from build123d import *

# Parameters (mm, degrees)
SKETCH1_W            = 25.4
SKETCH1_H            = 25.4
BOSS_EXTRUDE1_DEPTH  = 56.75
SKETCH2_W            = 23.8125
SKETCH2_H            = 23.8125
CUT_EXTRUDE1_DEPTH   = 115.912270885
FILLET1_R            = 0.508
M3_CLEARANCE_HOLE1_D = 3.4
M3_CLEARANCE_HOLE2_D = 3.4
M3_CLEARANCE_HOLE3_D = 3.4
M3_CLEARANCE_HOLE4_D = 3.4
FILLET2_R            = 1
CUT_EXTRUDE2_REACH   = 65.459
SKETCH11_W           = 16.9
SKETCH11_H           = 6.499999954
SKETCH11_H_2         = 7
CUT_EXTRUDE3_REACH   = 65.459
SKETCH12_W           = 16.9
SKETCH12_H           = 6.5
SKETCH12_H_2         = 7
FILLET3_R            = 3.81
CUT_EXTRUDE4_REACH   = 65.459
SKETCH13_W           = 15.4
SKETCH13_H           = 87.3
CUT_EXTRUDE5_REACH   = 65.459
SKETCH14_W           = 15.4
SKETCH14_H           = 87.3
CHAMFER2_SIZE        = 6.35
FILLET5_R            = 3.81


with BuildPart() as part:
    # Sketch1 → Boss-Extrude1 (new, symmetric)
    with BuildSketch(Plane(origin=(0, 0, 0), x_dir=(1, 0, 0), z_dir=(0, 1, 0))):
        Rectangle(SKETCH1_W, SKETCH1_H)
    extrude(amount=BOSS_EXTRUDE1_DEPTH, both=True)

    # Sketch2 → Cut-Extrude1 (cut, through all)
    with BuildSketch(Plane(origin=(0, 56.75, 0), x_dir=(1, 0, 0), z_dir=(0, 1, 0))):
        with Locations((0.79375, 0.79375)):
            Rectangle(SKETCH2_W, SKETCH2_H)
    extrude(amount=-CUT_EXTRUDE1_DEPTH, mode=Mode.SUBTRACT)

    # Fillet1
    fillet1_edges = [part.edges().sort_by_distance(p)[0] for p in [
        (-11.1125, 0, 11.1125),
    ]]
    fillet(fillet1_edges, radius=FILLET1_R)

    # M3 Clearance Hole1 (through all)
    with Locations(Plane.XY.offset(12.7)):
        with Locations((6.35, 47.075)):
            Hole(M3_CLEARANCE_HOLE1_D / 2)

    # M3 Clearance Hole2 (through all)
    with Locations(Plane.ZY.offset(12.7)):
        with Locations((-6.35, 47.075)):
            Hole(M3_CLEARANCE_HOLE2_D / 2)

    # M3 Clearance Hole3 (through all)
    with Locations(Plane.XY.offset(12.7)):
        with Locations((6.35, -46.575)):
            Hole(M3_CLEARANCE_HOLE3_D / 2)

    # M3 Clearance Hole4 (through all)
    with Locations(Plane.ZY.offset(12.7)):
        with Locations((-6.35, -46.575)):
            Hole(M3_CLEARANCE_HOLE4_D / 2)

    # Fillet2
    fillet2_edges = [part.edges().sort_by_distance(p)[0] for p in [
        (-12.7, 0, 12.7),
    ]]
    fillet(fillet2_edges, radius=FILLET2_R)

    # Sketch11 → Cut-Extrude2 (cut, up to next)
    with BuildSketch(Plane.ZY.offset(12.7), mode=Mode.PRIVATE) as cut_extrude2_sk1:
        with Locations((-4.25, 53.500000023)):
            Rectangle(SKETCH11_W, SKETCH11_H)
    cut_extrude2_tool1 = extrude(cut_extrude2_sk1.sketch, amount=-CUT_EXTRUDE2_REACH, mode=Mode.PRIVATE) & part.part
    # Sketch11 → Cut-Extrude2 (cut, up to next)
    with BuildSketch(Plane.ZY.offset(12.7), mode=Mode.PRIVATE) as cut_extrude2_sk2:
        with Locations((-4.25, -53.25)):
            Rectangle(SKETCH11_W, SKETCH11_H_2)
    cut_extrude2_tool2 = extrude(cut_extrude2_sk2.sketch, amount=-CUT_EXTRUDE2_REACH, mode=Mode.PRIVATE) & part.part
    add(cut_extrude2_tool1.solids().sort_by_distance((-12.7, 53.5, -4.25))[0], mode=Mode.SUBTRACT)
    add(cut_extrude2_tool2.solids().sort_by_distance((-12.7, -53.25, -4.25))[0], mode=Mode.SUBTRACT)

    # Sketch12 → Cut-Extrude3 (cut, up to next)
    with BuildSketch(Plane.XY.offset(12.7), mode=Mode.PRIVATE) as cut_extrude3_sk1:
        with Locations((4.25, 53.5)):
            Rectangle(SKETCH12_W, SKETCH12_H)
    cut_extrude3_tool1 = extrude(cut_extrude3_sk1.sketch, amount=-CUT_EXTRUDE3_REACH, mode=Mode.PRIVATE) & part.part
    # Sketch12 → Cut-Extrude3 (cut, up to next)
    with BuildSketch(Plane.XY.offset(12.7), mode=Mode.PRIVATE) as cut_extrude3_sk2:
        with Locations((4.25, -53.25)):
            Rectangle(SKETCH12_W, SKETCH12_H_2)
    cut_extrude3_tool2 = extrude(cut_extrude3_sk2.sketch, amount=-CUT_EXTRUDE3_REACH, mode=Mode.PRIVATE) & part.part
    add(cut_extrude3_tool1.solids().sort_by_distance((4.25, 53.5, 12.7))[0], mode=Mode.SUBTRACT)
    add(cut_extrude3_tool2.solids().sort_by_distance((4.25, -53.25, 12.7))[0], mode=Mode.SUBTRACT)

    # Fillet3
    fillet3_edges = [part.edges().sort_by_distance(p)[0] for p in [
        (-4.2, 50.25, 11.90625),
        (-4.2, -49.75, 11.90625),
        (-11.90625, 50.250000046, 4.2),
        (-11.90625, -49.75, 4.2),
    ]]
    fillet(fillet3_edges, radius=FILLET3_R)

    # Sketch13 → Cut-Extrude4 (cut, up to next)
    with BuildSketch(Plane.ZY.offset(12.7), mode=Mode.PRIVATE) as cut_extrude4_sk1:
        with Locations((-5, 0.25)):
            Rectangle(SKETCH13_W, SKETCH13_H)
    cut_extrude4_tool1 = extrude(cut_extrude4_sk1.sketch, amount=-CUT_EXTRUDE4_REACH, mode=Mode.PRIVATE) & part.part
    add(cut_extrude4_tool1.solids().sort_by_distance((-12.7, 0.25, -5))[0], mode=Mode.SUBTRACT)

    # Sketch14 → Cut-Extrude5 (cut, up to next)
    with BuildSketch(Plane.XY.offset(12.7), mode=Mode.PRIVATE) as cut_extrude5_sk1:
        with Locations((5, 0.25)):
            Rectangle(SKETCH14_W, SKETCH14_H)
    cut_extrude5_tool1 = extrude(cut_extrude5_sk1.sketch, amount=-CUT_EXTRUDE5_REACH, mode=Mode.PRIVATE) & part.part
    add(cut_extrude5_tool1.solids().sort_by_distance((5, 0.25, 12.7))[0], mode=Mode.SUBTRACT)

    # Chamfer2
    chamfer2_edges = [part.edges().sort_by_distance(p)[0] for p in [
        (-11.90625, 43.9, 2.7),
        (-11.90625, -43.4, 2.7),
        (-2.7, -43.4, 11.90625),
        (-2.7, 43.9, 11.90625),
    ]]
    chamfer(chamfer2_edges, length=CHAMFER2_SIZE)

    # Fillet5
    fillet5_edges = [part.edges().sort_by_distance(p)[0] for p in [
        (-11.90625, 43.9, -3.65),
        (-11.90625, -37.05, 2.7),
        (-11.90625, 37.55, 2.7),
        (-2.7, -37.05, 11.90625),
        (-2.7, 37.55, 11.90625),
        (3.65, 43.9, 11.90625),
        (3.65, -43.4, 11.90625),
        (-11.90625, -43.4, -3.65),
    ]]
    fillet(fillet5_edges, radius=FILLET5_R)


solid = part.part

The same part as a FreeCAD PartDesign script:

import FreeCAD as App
import Part
import Sketcher

V = App.Vector
Q = App.Units.Quantity


def edges_at(feature, points):
    """Names of the edges that pass closest to the given points."""
    edges = feature.Shape.Edges
    near = lambda p: min(range(len(edges)), key=lambda i: edges[i].distToShape(Part.Vertex(*p))[0])
    return sorted({f"Edge{near(p) + 1}" for p in points})


def add_polygon(sketch, points):
    """Adds a closed chain of lines whose ends are joined by coincident constraints."""
    first, n = sketch.GeometryCount, len(points)
    for a, b in zip(points, points[1:] + points[:1]):
        sketch.addGeometry(Part.LineSegment(App.Vector(*a, 0), App.Vector(*b, 0)), False)
    for i in range(n):
        sketch.addConstraint(Sketcher.Constraint("Coincident", first + i, 2, first + (i + 1) % n, 1))

doc = App.newDocument("Part")
body = doc.addObject("PartDesign::Body", "Body")

# Sketch on XZ plane
sketch1 = doc.addObject("Sketcher::SketchObject", "Sketch")
body.addObject(sketch1)
sketch1.AttachmentSupport = (doc.XZ_Plane, [""])
sketch1.MapMode = "FlatFace"
add_polygon(sketch1, [(-13, -13), (-13, 13), (13, 13), (13, -13)])  # lines 0-3
sketch1.addConstraint([
    Sketcher.Constraint("Vertical", 0),
    Sketcher.Constraint("Horizontal", 1),
    Sketcher.Constraint("Vertical", 2),
    Sketcher.Constraint("Horizontal", 3),
    Sketcher.Constraint("Symmetric", 0, 2, 2, 2, -1, 1),
    Sketcher.Constraint("Equal", 3, 0),
    Sketcher.Constraint("DistanceX", 1, 1, 1, 2, Q("25.4 mm")),
])
pad1 = doc.addObject("PartDesign::Pad", "Pad")
body.addObject(pad1)
pad1.Profile = sketch1
pad1.Length = 113.5
pad1.Midplane = True

# Sketch on XZ plane
sketch2 = doc.addObject("Sketcher::SketchObject", "Sketch001")
body.addObject(sketch2)
sketch2.AttachmentSupport = (doc.XZ_Plane, [""])
sketch2.MapMode = "FlatFace"
sketch2.AttachmentOffset = App.Placement(V(0, 0, -56.75), App.Rotation())
add_polygon(sketch2, [(-11, -13), (-11, 11), (13, 11), (13, -13)])  # lines 0-3
sketch2.addConstraint([
    Sketcher.Constraint("Vertical", 0),
    Sketcher.Constraint("Horizontal", 1),
    Sketcher.Constraint("Vertical", 2),
    Sketcher.Constraint("Horizontal", 3),
    Sketcher.Constraint("Equal", 3, 0),
    Sketcher.Constraint("DistanceX", -1, 1, 1, 2, Q("12.7 mm")),
    Sketcher.Constraint("DistanceY", 2, 2, -1, 1, Q("12.7 mm")),
    Sketcher.Constraint("DistanceX", 1, 1, 1, 2, Q("23.8125 mm")),
])
pocket1 = doc.addObject("PartDesign::Pocket", "Pocket")
body.addObject(pocket1)
pocket1.Profile = sketch2
pocket1.Type = "ThroughAll"
pocket1.Reversed = True
doc.recompute()

fillet = doc.addObject("PartDesign::Fillet", "Fillet")
body.addObject(fillet)
fillet.Base = (pocket1, edges_at(pocket1, [(-11.113, 0, 11.113)]))
fillet.Radius = 0.508

# Sketch on XY plane
sketch3 = doc.addObject("Sketcher::SketchObject", "Sketch002")
body.addObject(sketch3)
sketch3.AttachmentSupport = (doc.XY_Plane, [""])
sketch3.MapMode = "FlatFace"
sketch3.AttachmentOffset = App.Placement(V(0, 0, 12.7), App.Rotation())
sketch3.addGeometry(Part.Circle(V(6.3, 47.1, 0), V(0, 0, 1), 1.7), False)
sketch3.addConstraint([
    Sketcher.Constraint("Diameter", 0, Q("3.4 mm")),
    Sketcher.Constraint("DistanceX", -1, 1, 0, 3, Q("6.35 mm")),
    Sketcher.Constraint("DistanceY", -1, 1, 0, 3, Q("47.075 mm")),
])
doc.recompute()
hole = doc.addObject("PartDesign::Hole", "Hole")
body.addObject(hole)
hole.Profile = sketch3
hole.ThreadType = "None"
hole.Diameter = 3.4
hole.DepthType = "ThroughAll"

# Sketch on YZ plane
sketch4 = doc.addObject("Sketcher::SketchObject", "Sketch003")
body.addObject(sketch4)
sketch4.AttachmentSupport = (doc.YZ_Plane, [""])
sketch4.MapMode = "FlatFace"
sketch4.AttachmentOffset = App.Placement(V(0, 0, -12.7), App.Rotation())
sketch4.addGeometry(Part.Circle(V(47.1, -6.3, 0), V(0, 0, 1), 1.7), False)
sketch4.addConstraint([
    Sketcher.Constraint("Diameter", 0, Q("3.4 mm")),
    Sketcher.Constraint("DistanceY", 0, 3, -1, 1, Q("6.35 mm")),
    Sketcher.Constraint("DistanceX", -1, 1, 0, 3, Q("47.075 mm")),
])
doc.recompute()
hole2 = doc.addObject("PartDesign::Hole", "Hole001")
body.addObject(hole2)
hole2.Profile = sketch4
hole2.ThreadType = "None"
hole2.Diameter = 3.4
hole2.DepthType = "ThroughAll"
hole2.Reversed = True

# Sketch on XY plane
sketch5 = doc.addObject("Sketcher::SketchObject", "Sketch004")
body.addObject(sketch5)
sketch5.AttachmentSupport = (doc.XY_Plane, [""])
sketch5.MapMode = "FlatFace"
sketch5.AttachmentOffset = App.Placement(V(0, 0, 12.7), App.Rotation())
sketch5.addGeometry(Part.Circle(V(6.3, -46.6, 0), V(0, 0, 1), 1.7), False)
sketch5.addConstraint([
    Sketcher.Constraint("Diameter", 0, Q("3.4 mm")),
    Sketcher.Constraint("DistanceX", -1, 1, 0, 3, Q("6.35 mm")),
    Sketcher.Constraint("DistanceY", 0, 3, -1, 1, Q("46.575 mm")),
])
doc.recompute()
hole3 = doc.addObject("PartDesign::Hole", "Hole002")
body.addObject(hole3)
hole3.Profile = sketch5
hole3.ThreadType = "None"
hole3.Diameter = 3.4
hole3.DepthType = "ThroughAll"

# Sketch on YZ plane
sketch6 = doc.addObject("Sketcher::SketchObject", "Sketch005")
body.addObject(sketch6)
sketch6.AttachmentSupport = (doc.YZ_Plane, [""])
sketch6.MapMode = "FlatFace"
sketch6.AttachmentOffset = App.Placement(V(0, 0, -12.7), App.Rotation())
sketch6.addGeometry(Part.Circle(V(-46.6, -6.3, 0), V(0, 0, 1), 1.7), False)
sketch6.addConstraint([
    Sketcher.Constraint("Diameter", 0, Q("3.4 mm")),
    Sketcher.Constraint("DistanceY", 0, 3, -1, 1, Q("6.35 mm")),
    Sketcher.Constraint("DistanceX", 0, 3, -1, 1, Q("46.575 mm")),
])
doc.recompute()
hole4 = doc.addObject("PartDesign::Hole", "Hole003")
body.addObject(hole4)
hole4.Profile = sketch6
hole4.ThreadType = "None"
hole4.Diameter = 3.4
hole4.DepthType = "ThroughAll"
hole4.Reversed = True
doc.recompute()

fillet2 = doc.addObject("PartDesign::Fillet", "Fillet001")
body.addObject(fillet2)
fillet2.Base = (hole4, edges_at(hole4, [(-12.7, 0, 12.7)]))
fillet2.Radius = 1

# Sketch on YZ plane
sketch7 = doc.addObject("Sketcher::SketchObject", "Sketch006")
body.addObject(sketch7)
sketch7.AttachmentSupport = (doc.YZ_Plane, [""])
sketch7.MapMode = "FlatFace"
sketch7.AttachmentOffset = App.Placement(V(0, 0, -12.7), App.Rotation())
add_polygon(sketch7, [(57, -13), (50, -13), (50, 4), (57, 4)])  # lines 0-3
sketch7.addConstraint([
    Sketcher.Constraint("Horizontal", 0),
    Sketcher.Constraint("Vertical", 1),
    Sketcher.Constraint("Horizontal", 2),
    Sketcher.Constraint("Vertical", 3),
    Sketcher.Constraint("DistanceX", 0, 2, 0, 1, Q("6.5 mm")),
    Sketcher.Constraint("DistanceY", 1, 1, 1, 2, Q("16.9 mm")),
    Sketcher.Constraint("DistanceY", 0, 2, -1, 1, Q("12.7 mm")),
    Sketcher.Constraint("DistanceX", -1, 1, 0, 2, Q("50.25 mm")),
])
pocket2 = doc.addObject("PartDesign::Pocket", "Pocket001")
body.addObject(pocket2)
pocket2.Profile = sketch7
pocket2.Type = "UpToFirst"
pocket2.Reversed = True

# Sketch on YZ plane
sketch8 = doc.addObject("Sketcher::SketchObject", "Sketch007")
body.addObject(sketch8)
sketch8.AttachmentSupport = (doc.YZ_Plane, [""])
sketch8.MapMode = "FlatFace"
sketch8.AttachmentOffset = App.Placement(V(0, 0, -12.7), App.Rotation())
add_polygon(sketch8, [(-50, -13), (-57, -13), (-57, 4), (-50, 4)])  # lines 0-3
sketch8.addConstraint([
    Sketcher.Constraint("Horizontal", 0),
    Sketcher.Constraint("Vertical", 1),
    Sketcher.Constraint("Horizontal", 2),
    Sketcher.Constraint("Vertical", 3),
    Sketcher.Constraint("DistanceX", 0, 2, 0, 1, Q("7 mm")),
    Sketcher.Constraint("DistanceY", 1, 1, 1, 2, Q("16.9 mm")),
    Sketcher.Constraint("DistanceY", 0, 2, -1, 1, Q("12.7 mm")),
    Sketcher.Constraint("DistanceX", 0, 2, -1, 1, Q("56.75 mm")),
])
pocket3 = doc.addObject("PartDesign::Pocket", "Pocket002")
body.addObject(pocket3)
pocket3.Profile = sketch8
pocket3.Type = "UpToFirst"
pocket3.Reversed = True

# Sketch on XY plane
sketch9 = doc.addObject("Sketcher::SketchObject", "Sketch008")
body.addObject(sketch9)
sketch9.AttachmentSupport = (doc.XY_Plane, [""])
sketch9.MapMode = "FlatFace"
sketch9.AttachmentOffset = App.Placement(V(0, 0, 12.7), App.Rotation())
add_polygon(sketch9, [(-4, 57), (-4, 50), (13, 50), (13, 57)])  # lines 0-3
sketch9.addConstraint([
    Sketcher.Constraint("Vertical", 0),
    Sketcher.Constraint("Horizontal", 1),
    Sketcher.Constraint("Vertical", 2),
    Sketcher.Constraint("Horizontal", 3),
    Sketcher.Constraint("DistanceX", 1, 1, 1, 2, Q("16.9 mm")),
    Sketcher.Constraint("DistanceY", 0, 2, 0, 1, Q("6.5 mm")),
    Sketcher.Constraint("DistanceX", 0, 2, -1, 1, Q("4.2 mm")),
    Sketcher.Constraint("DistanceY", -1, 1, 0, 2, Q("50.25 mm")),
])
pocket4 = doc.addObject("PartDesign::Pocket", "Pocket003")
body.addObject(pocket4)
pocket4.Profile = sketch9
pocket4.Type = "UpToFirst"

# Sketch on XY plane
sketch10 = doc.addObject("Sketcher::SketchObject", "Sketch009")
body.addObject(sketch10)
sketch10.AttachmentSupport = (doc.XY_Plane, [""])
sketch10.MapMode = "FlatFace"
sketch10.AttachmentOffset = App.Placement(V(0, 0, 12.7), App.Rotation())
add_polygon(sketch10, [(-4, -50), (-4, -57), (13, -57), (13, -50)])  # lines 0-3
sketch10.addConstraint([
    Sketcher.Constraint("Vertical", 0),
    Sketcher.Constraint("Horizontal", 1),
    Sketcher.Constraint("Vertical", 2),
    Sketcher.Constraint("Horizontal", 3),
    Sketcher.Constraint("DistanceY", 0, 2, 0, 1, Q("7 mm")),
    Sketcher.Constraint("DistanceX", 1, 1, 1, 2, Q("16.9 mm")),
    Sketcher.Constraint("DistanceX", 0, 2, -1, 1, Q("4.2 mm")),
    Sketcher.Constraint("DistanceY", 0, 2, -1, 1, Q("56.75 mm")),
])
pocket5 = doc.addObject("PartDesign::Pocket", "Pocket004")
body.addObject(pocket5)
pocket5.Profile = sketch10
pocket5.Type = "UpToFirst"
doc.recompute()

fillet3 = doc.addObject("PartDesign::Fillet", "Fillet002")
body.addObject(fillet3)
fillet3.Base = (pocket5, edges_at(pocket5, [
    (-4.2, 50.25, 11.906),
    (-4.2, -49.75, 11.906),
    (-11.906, 50.25, 4.2),
    (-11.906, -49.75, 4.2),
]))
fillet3.Radius = 3.81

# Sketch on YZ plane
sketch11 = doc.addObject("Sketcher::SketchObject", "Sketch010")
body.addObject(sketch11)
sketch11.AttachmentSupport = (doc.YZ_Plane, [""])
sketch11.MapMode = "FlatFace"
sketch11.AttachmentOffset = App.Placement(V(0, 0, -12.7), App.Rotation())
add_polygon(sketch11, [(44, -13), (-43, -13), (-43, 3), (44, 3)])  # lines 0-3
sketch11.addConstraint([
    Sketcher.Constraint("Horizontal", 0),
    Sketcher.Constraint("Vertical", 1),
    Sketcher.Constraint("Horizontal", 2),
    Sketcher.Constraint("Vertical", 3),
    Sketcher.Constraint("DistanceX", 0, 2, 0, 1, Q("87.3 mm")),
    Sketcher.Constraint("DistanceY", 1, 1, 1, 2, Q("15.4 mm")),
    Sketcher.Constraint("DistanceX", 0, 2, -1, 1, Q("43.4 mm")),
    Sketcher.Constraint("DistanceY", 0, 2, -1, 1, Q("12.7 mm")),
])
pocket6 = doc.addObject("PartDesign::Pocket", "Pocket005")
body.addObject(pocket6)
pocket6.Profile = sketch11
pocket6.Type = "UpToFirst"
pocket6.Reversed = True

# Sketch on XY plane
sketch12 = doc.addObject("Sketcher::SketchObject", "Sketch011")
body.addObject(sketch12)
sketch12.AttachmentSupport = (doc.XY_Plane, [""])
sketch12.MapMode = "FlatFace"
sketch12.AttachmentOffset = App.Placement(V(0, 0, 12.7), App.Rotation())
add_polygon(sketch12, [(-3, 44), (-3, -43), (13, -43), (13, 44)])  # lines 0-3
sketch12.addConstraint([
    Sketcher.Constraint("Vertical", 0),
    Sketcher.Constraint("Horizontal", 1),
    Sketcher.Constraint("Vertical", 2),
    Sketcher.Constraint("Horizontal", 3),
    Sketcher.Constraint("DistanceX", 1, 1, 1, 2, Q("15.4 mm")),
    Sketcher.Constraint("DistanceY", 0, 2, 0, 1, Q("87.3 mm")),
    Sketcher.Constraint("DistanceX", 0, 2, -1, 1, Q("2.7 mm")),
    Sketcher.Constraint("DistanceY", 0, 2, -1, 1, Q("43.4 mm")),
])
pocket7 = doc.addObject("PartDesign::Pocket", "Pocket006")
body.addObject(pocket7)
pocket7.Profile = sketch12
pocket7.Type = "UpToFirst"
doc.recompute()

chamfer = doc.addObject("PartDesign::Chamfer", "Chamfer")
body.addObject(chamfer)
chamfer.Base = (pocket7, edges_at(pocket7, [
    (-11.906, 43.9, 2.7),
    (-11.906, -43.4, 2.7),
    (-2.7, -43.4, 11.906),
    (-2.7, 43.9, 11.906),
]))
chamfer.Size = 6.35
doc.recompute()

fillet4 = doc.addObject("PartDesign::Fillet", "Fillet003")
body.addObject(fillet4)
fillet4.Base = (chamfer, edges_at(chamfer, [
    (-11.906, 43.9, -3.65),
    (-11.906, -37.05, 2.7),
    (-11.906, 37.55, 2.7),
    (-2.7, -37.05, 11.906),
    (-2.7, 37.55, 11.906),
    (3.65, 43.9, 11.906),
    (3.65, -43.4, 11.906),
    (-11.906, -43.4, -3.65),
]))
fillet4.Radius = 3.81

doc.recompute()
